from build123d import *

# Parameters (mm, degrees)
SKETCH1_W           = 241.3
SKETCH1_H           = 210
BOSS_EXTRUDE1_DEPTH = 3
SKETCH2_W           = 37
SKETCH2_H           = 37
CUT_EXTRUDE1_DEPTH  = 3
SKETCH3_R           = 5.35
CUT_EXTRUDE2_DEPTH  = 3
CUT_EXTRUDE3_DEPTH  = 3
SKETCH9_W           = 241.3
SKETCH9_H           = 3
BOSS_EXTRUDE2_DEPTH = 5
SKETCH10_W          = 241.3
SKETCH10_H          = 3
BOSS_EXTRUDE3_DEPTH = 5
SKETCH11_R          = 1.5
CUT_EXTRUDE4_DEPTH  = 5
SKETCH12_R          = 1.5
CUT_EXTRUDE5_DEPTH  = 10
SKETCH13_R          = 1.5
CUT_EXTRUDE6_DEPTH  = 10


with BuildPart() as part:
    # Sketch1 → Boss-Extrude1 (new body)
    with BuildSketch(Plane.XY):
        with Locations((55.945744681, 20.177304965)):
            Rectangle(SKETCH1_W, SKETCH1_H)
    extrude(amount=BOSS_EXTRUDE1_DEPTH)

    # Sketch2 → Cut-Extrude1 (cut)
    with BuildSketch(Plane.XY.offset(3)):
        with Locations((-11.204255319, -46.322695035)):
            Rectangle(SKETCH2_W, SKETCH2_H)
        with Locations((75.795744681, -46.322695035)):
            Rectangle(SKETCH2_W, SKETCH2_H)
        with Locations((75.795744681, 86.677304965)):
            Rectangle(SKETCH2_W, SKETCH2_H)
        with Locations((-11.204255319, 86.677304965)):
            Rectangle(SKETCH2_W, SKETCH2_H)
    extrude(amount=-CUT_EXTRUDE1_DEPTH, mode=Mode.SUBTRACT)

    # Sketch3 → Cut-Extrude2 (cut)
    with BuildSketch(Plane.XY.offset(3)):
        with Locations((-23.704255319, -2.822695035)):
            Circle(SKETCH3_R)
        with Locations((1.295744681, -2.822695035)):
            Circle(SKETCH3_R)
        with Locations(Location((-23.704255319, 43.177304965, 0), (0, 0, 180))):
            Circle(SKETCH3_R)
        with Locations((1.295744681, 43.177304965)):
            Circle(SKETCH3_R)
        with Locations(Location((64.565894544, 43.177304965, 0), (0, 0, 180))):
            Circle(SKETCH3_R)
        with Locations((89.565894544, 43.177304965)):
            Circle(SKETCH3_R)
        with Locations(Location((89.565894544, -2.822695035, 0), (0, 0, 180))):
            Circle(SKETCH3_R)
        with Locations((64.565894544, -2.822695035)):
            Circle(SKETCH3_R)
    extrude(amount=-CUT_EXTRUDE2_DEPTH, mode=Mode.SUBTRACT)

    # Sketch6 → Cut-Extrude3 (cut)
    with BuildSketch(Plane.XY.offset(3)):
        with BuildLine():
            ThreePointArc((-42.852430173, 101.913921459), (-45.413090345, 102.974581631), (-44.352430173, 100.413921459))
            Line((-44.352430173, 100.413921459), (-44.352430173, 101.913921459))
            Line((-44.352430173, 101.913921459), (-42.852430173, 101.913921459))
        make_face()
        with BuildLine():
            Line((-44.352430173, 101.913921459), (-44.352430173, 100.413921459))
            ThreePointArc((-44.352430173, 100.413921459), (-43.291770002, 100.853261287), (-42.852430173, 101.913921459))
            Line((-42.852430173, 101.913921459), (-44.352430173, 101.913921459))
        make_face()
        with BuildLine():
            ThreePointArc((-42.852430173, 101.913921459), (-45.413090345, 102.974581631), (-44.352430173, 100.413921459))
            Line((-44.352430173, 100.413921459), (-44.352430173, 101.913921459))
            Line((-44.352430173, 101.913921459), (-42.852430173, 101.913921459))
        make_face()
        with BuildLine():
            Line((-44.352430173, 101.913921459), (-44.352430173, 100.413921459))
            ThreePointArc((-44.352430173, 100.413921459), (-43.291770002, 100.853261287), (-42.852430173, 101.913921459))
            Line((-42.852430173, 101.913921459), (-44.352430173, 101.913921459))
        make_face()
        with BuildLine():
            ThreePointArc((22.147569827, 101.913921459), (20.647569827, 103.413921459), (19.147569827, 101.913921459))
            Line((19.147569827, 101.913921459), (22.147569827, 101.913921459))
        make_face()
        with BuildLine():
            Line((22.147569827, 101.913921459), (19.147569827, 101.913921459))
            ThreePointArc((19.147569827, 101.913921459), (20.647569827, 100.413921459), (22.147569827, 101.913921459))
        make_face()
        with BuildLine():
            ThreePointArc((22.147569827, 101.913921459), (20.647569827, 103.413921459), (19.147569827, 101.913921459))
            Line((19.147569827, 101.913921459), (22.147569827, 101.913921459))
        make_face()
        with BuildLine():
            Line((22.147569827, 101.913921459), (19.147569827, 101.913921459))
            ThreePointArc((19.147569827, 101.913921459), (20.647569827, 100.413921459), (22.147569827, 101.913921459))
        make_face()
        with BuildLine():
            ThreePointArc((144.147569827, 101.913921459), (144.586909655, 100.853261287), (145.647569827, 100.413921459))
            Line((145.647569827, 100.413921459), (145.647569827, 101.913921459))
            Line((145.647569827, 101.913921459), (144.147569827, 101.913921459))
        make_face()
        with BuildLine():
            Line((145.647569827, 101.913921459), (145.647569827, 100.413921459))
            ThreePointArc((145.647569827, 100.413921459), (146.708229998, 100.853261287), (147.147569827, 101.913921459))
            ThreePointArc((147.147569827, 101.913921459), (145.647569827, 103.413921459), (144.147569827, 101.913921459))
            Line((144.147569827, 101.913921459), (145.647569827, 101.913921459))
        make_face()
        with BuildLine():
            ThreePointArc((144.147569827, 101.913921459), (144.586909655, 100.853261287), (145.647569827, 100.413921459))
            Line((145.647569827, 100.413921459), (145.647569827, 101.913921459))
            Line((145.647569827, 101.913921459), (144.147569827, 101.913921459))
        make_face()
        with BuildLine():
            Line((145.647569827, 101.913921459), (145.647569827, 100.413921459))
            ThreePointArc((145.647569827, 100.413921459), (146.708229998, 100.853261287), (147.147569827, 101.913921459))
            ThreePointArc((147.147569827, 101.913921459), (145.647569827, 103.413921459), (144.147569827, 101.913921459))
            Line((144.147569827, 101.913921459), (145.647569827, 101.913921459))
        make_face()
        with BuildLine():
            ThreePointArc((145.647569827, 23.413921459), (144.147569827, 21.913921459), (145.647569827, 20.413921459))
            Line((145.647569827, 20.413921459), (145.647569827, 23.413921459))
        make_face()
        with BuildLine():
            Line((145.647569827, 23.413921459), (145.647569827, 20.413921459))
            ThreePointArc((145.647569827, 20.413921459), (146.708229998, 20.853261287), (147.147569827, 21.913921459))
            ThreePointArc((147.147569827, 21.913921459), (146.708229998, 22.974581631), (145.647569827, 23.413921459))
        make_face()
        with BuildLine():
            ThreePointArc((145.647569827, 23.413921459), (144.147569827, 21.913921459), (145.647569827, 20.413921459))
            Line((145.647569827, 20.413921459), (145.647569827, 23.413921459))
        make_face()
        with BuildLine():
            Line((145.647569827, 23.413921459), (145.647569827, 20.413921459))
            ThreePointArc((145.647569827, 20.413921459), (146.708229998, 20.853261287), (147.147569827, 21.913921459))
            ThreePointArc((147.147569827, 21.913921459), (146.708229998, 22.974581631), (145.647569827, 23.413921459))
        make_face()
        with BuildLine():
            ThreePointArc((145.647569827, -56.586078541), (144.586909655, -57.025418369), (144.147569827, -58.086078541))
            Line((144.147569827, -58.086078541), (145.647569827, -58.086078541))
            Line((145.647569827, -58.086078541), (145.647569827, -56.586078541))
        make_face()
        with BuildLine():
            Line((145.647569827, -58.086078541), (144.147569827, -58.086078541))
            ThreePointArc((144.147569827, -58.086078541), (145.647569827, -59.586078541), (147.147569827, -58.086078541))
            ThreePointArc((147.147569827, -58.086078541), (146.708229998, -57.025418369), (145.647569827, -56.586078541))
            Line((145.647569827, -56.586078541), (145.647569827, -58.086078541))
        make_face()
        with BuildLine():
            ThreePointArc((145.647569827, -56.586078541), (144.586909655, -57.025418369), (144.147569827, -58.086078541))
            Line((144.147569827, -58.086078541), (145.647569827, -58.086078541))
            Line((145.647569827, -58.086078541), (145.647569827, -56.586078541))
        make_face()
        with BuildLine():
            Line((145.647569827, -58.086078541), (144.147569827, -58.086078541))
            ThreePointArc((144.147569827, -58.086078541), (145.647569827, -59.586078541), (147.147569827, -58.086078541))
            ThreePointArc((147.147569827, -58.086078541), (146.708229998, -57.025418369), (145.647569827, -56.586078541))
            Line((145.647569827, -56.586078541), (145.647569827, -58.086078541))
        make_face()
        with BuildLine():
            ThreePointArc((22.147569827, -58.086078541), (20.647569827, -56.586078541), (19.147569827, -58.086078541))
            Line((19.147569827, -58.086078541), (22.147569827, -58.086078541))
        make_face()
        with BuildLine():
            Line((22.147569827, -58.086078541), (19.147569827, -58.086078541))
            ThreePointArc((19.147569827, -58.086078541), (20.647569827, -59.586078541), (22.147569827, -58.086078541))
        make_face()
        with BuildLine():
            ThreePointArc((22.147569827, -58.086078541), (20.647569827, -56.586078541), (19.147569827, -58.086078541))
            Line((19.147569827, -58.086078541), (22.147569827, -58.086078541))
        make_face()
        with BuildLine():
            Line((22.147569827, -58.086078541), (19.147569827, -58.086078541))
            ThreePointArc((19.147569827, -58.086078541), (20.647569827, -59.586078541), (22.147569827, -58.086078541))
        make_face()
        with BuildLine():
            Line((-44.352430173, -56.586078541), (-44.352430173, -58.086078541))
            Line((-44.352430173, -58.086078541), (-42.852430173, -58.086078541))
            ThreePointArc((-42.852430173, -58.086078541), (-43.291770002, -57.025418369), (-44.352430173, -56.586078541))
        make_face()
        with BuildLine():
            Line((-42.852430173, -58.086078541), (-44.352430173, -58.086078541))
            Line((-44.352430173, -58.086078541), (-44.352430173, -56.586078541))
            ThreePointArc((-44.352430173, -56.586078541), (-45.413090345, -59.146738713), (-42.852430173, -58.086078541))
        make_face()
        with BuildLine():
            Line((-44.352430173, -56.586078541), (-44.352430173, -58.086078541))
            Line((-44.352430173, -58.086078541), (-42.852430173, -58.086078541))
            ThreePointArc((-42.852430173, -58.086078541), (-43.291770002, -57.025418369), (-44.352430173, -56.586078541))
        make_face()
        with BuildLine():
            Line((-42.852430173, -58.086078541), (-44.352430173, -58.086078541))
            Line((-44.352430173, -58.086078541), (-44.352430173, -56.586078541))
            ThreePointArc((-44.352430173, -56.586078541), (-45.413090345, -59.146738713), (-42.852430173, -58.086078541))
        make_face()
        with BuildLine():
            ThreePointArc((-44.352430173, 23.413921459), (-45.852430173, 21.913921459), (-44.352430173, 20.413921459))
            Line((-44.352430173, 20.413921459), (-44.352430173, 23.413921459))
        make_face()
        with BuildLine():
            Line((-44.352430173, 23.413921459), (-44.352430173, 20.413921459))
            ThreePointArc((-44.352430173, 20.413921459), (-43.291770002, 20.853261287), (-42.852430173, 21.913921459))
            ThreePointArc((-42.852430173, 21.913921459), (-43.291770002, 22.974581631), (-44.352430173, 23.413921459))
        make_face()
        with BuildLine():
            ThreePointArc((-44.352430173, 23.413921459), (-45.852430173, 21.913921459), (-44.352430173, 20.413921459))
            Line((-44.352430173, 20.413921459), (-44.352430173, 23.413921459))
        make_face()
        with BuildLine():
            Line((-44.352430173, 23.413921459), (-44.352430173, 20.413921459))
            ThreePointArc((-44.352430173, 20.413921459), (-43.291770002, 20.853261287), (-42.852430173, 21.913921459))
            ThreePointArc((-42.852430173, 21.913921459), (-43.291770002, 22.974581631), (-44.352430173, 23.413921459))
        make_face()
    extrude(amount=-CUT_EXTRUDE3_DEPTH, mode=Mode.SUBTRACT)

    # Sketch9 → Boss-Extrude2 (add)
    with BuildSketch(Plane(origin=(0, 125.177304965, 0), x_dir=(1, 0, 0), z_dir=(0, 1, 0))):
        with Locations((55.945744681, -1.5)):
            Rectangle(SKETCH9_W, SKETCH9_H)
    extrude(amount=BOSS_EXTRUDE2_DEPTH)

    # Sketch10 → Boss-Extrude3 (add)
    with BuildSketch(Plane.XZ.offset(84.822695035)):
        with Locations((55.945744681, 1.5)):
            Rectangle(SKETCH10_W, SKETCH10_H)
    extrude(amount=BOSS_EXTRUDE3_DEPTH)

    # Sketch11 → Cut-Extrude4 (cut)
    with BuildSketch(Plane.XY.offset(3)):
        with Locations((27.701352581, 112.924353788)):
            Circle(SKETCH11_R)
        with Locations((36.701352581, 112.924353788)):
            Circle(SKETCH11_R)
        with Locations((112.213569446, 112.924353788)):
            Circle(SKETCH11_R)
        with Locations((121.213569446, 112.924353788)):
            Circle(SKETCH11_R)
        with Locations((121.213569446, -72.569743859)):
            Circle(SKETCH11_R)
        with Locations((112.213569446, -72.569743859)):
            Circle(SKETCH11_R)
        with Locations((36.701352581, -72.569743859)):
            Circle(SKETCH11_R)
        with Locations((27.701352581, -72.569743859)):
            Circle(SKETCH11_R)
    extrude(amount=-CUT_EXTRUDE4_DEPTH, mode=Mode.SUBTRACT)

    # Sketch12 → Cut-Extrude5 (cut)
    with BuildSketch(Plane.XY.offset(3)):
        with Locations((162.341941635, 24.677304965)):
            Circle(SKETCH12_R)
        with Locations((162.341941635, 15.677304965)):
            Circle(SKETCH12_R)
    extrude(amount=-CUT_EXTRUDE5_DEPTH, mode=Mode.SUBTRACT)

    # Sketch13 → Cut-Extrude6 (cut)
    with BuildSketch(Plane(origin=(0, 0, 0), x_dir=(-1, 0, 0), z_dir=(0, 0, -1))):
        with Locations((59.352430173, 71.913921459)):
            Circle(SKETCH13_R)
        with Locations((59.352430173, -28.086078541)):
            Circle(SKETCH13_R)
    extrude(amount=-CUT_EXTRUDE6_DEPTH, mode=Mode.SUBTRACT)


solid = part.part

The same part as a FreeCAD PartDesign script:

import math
import FreeCAD as App
import Part
import Sketcher
Q = App.Units.Quantity


def add_polygon(sketch, points):
    """Adds a closed chain of lines whose ends are joined by coincident constraints."""
    first, n = sketch.GeometryCount, len(points)
    for a, b in zip(points, points[1:] + points[:1]):
        sketch.addGeometry(Part.LineSegment(App.Vector(*a, 0), App.Vector(*b, 0)), False)
    for i in range(n):
        sketch.addConstraint(Sketcher.Constraint("Coincident", first + i, 2, first + (i + 1) % n, 1))

doc = App.newDocument("Part")
body = doc.addObject("PartDesign::Body", "Body")

# Sketch on XY plane
sketch1 = doc.addObject("Sketcher::SketchObject", "Sketch")
body.addObject(sketch1)
sketch1.AttachmentSupport = (doc.XY_Plane, [""])
sketch1.MapMode = "FlatFace"
add_polygon(sketch1, [(-65, 125), (-65, -85), (177, -85), (177, 125)])  # lines 0-3
sketch1.addConstraint([
    Sketcher.Constraint("Vertical", 0),
    Sketcher.Constraint("Horizontal", 1),
    Sketcher.Constraint("Vertical", 2),
    Sketcher.Constraint("Horizontal", 3),
    Sketcher.Constraint("DistanceY", 0, 2, 0, 1, Q("210 mm")),
    Sketcher.Constraint("DistanceX", 1, 1, 1, 2, Q("241.3 mm")),
    Sketcher.Constraint("DistanceX", 0, 2, -1, 1, Q("64.704255 mm")),
    Sketcher.Constraint("DistanceY", 0, 2, -1, 1, Q("84.822695 mm")),
])
pad1 = doc.addObject("PartDesign::Pad", "Pad")
body.addObject(pad1)
pad1.Profile = sketch1
pad1.Length = 3

# Sketch on XY plane
sketch2 = doc.addObject("Sketcher::SketchObject", "Sketch001")
body.addObject(sketch2)
sketch2.AttachmentSupport = (doc.XY_Plane, [""])
sketch2.MapMode = "FlatFace"
sketch2.AttachmentOffset = App.Placement(App.Vector(0, 0, 3), App.Rotation())
add_polygon(sketch2, [(-30, -28), (-30, -65), (7, -65), (7, -28)])  # lines 0-3
add_polygon(sketch2, [(57, -28), (57, -65), (94, -65), (94, -28)])  # lines 4-7
add_polygon(sketch2, [(57, 105), (57, 68), (94, 68), (94, 105)])  # lines 8-11
add_polygon(sketch2, [(-30, 105), (-30, 68), (7, 68), (7, 105)])  # lines 12-15
sketch2.addConstraint([
    Sketcher.Constraint("Vertical", 0),
    Sketcher.Constraint("Horizontal", 1),
    Sketcher.Constraint("Vertical", 2),
    Sketcher.Constraint("Horizontal", 3),
    Sketcher.Constraint("Vertical", 4),
    Sketcher.Constraint("Horizontal", 5),
    Sketcher.Constraint("Vertical", 6),
    Sketcher.Constraint("Horizontal", 7),
    Sketcher.Constraint("Vertical", 8),
    Sketcher.Constraint("Horizontal", 9),
    Sketcher.Constraint("Vertical", 10),
    Sketcher.Constraint("Horizontal", 11),
    Sketcher.Constraint("Vertical", 12),
    Sketcher.Constraint("Horizontal", 13),
    Sketcher.Constraint("Vertical", 14),
    Sketcher.Constraint("Horizontal", 15),
    Sketcher.Constraint("Horizontal", 1, 2, 4, 2),
    Sketcher.Constraint("Horizontal", 3, 2, 6, 2),
    Sketcher.Constraint("Horizontal", 9, 2, 12, 2),
    Sketcher.Constraint("Horizontal", 11, 2, 14, 2),
    Sketcher.Constraint("Vertical", 7, 2, 8, 2),
    Sketcher.Constraint("Vertical", 6, 2, 9, 2),
    Sketcher.Constraint("Vertical", 3, 2, 12, 2),
    Sketcher.Constraint("Vertical", 2, 2, 13, 2),
    Sketcher.Constraint("Equal", 3, 5),
    Sketcher.Constraint("Equal", 15, 0),
    Sketcher.Constraint("Equal", 6, 8),
    Sketcher.Constraint("DistanceX", 1, 1, 1, 2, Q("37 mm")),
    Sketcher.Constraint("DistanceX", 1, 2, 4, 2, Q("50 mm")),
    Sketcher.Constraint("DistanceY", 7, 2, 8, 2, Q("96 mm")),
    Sketcher.Constraint("DistanceX", 0, 2, -1, 1, Q("29.704255 mm")),
    Sketcher.Constraint("DistanceY", 0, 2, -1, 1, Q("64.822695 mm")),
])
pocket1 = doc.addObject("PartDesign::Pocket", "Pocket")
body.addObject(pocket1)
pocket1.Profile = sketch2
pocket1.Length = 3

# Sketch on XY plane
sketch3 = doc.addObject("Sketcher::SketchObject", "Sketch002")
body.addObject(sketch3)
sketch3.AttachmentSupport = (doc.XY_Plane, [""])
sketch3.MapMode = "FlatFace"
sketch3.AttachmentOffset = App.Placement(App.Vector(0, 0, 3), App.Rotation())
sketch3.addGeometry([
    Part.Circle(App.Vector(-24, -3, 0), App.Vector(0, 0, 1), 5),  # 0
    Part.Circle(App.Vector(1, -3, 0), App.Vector(0, 0, 1), 5),  # 1
    Part.Circle(App.Vector(-24, 43, 0), App.Vector(0, 0, 1), 5),  # 2
    Part.Circle(App.Vector(1, 43, 0), App.Vector(0, 0, 1), 5),  # 3
    Part.Circle(App.Vector(65, 43, 0), App.Vector(0, 0, 1), 5),  # 4
    Part.Circle(App.Vector(90, 43, 0), App.Vector(0, 0, 1), 5),  # 5
    Part.Circle(App.Vector(90, -3, 0), App.Vector(0, 0, 1), 5),  # 6
    Part.Circle(App.Vector(65, -3, 0), App.Vector(0, 0, 1), 5),  # 7
], False)
sketch3.addConstraint([
    Sketcher.Constraint("Equal", 0, 1),
    Sketcher.Constraint("Equal", 1, 2),
    Sketcher.Constraint("Equal", 2, 3),
    Sketcher.Constraint("Equal", 3, 4),
    Sketcher.Constraint("Equal", 4, 5),
    Sketcher.Constraint("Equal", 5, 6),
    Sketcher.Constraint("Equal", 6, 7),
    Sketcher.Constraint("Horizontal", 0, 3, 1, 3),
    Sketcher.Constraint("Horizontal", 2, 3, 3, 3),
    Sketcher.Constraint("Horizontal", 3, 3, 4, 3),
    Sketcher.Constraint("Horizontal", 4, 3, 5, 3),
    Sketcher.Constraint("Horizontal", 1, 3, 6, 3),
    Sketcher.Constraint("Horizontal", 6, 3, 7, 3),
    Sketcher.Constraint("Vertical", 0, 3, 2, 3),
    Sketcher.Constraint("Vertical", 1, 3, 3, 3),
    Sketcher.Constraint("Vertical", 5, 3, 6, 3),
    Sketcher.Constraint("Vertical", 4, 3, 7, 3),
    Sketcher.Constraint("Diameter", 0, Q("10.7 mm")),
    Sketcher.Constraint("DistanceX", 0, 3, 1, 3, Q("25 mm")),
    Sketcher.Constraint("DistanceY", 0, 3, 2, 3, Q("46 mm")),
    Sketcher.Constraint("DistanceX", 4, 3, 5, 3, Q("25 mm")),
    Sketcher.Constraint("DistanceX", 3, 3, 4, 3, Q("63.27015 mm")),
    Sketcher.Constraint("DistanceX", 0, 3, -1, 1, Q("23.704255 mm")),
    Sketcher.Constraint("DistanceY", 0, 3, -1, 1, Q("2.822695 mm")),
])
pocket2 = doc.addObject("PartDesign::Pocket", "Pocket001")
body.addObject(pocket2)
pocket2.Profile = sketch3
pocket2.Length = 3

# Sketch on XY plane
sketch4 = doc.addObject("Sketcher::SketchObject", "Sketch003")
body.addObject(sketch4)
sketch4.AttachmentSupport = (doc.XY_Plane, [""])
sketch4.MapMode = "FlatFace"
sketch4.AttachmentOffset = App.Placement(App.Vector(0, 0, 3), App.Rotation())
sketch4.addGeometry([
    Part.ArcOfCircle(Part.Circle(App.Vector(-44.4, 101.9, 0), App.Vector(0, 0, 1), 1.5), math.radians(0), math.radians(270)),  # 0
    Part.ArcOfCircle(Part.Circle(App.Vector(-44.4, 101.9, 0), App.Vector(0, 0, 1), 1.5), math.radians(-90), math.radians(0)),  # 1
    Part.Circle(App.Vector(20.6, 101.9, 0), App.Vector(0, 0, 1), 1.5),  # 2
    Part.ArcOfCircle(Part.Circle(App.Vector(145.6, 101.9, 0), App.Vector(0, 0, 1), 1.5), math.radians(180), math.radians(270)),  # 3
    Part.ArcOfCircle(Part.Circle(App.Vector(145.6, 101.9, 0), App.Vector(0, 0, 1), 1.5), math.radians(-90), math.radians(0)),  # 4
    Part.ArcOfCircle(Part.Circle(App.Vector(145.6, 101.9, 0), App.Vector(0, 0, 1), 1.5), math.radians(0), math.radians(180)),  # 5
    Part.ArcOfCircle(Part.Circle(App.Vector(145.6, 21.9, 0), App.Vector(0, 0, 1), 1.5), math.radians(90), math.radians(270)),  # 6
    Part.ArcOfCircle(Part.Circle(App.Vector(145.6, 21.9, 0), App.Vector(0, 0, 1), 1.5), math.radians(-90), math.radians(0)),  # 7
    Part.ArcOfCircle(Part.Circle(App.Vector(145.6, 21.9, 0), App.Vector(0, 0, 1), 1.5), math.radians(0), math.radians(90)),  # 8
    Part.ArcOfCircle(Part.Circle(App.Vector(145.6, -58.1, 0), App.Vector(0, 0, 1), 1.5), math.radians(90), math.radians(180)),  # 9
    Part.ArcOfCircle(Part.Circle(App.Vector(145.6, -58.1, 0), App.Vector(0, 0, 1), 1.5), math.radians(180), math.radians(360)),  # 10
    Part.ArcOfCircle(Part.Circle(App.Vector(145.6, -58.1, 0), App.Vector(0, 0, 1), 1.5), math.radians(0), math.radians(90)),  # 11
    Part.Circle(App.Vector(20.6, -58.1, 0), App.Vector(0, 0, 1), 1.5),  # 12
    Part.ArcOfCircle(Part.Circle(App.Vector(-44.4, -58.1, 0), App.Vector(0, 0, 1), 1.5), math.radians(0), math.radians(90)),  # 13
    Part.ArcOfCircle(Part.Circle(App.Vector(-44.4, -58.1, 0), App.Vector(0, 0, 1), 1.5), math.radians(90), math.radians(360)),  # 14
    Part.ArcOfCircle(Part.Circle(App.Vector(-44.4, 21.9, 0), App.Vector(0, 0, 1), 1.5), math.radians(90), math.radians(270)),  # 15
    Part.ArcOfCircle(Part.Circle(App.Vector(-44.4, 21.9, 0), App.Vector(0, 0, 1), 1.5), math.radians(-90), math.radians(0)),  # 16
    Part.ArcOfCircle(Part.Circle(App.Vector(-44.4, 21.9, 0), App.Vector(0, 0, 1), 1.5), math.radians(0), math.radians(90)),  # 17
], False)
sketch4.addConstraint([
    Sketcher.Constraint("Tangent", 0, 1, 1, 2),
    Sketcher.Constraint("Coincident", 1, 1, 0, 2),
    Sketcher.Constraint("Tangent", 3, 2, 4, 1),
    Sketcher.Constraint("Tangent", 4, 2, 5, 1),
    Sketcher.Constraint("Tangent", 5, 2, 3, 1),
    Sketcher.Constraint("Tangent", 6, 2, 7, 1),
    Sketcher.Constraint("Tangent", 7, 2, 8, 1),
    Sketcher.Constraint("Tangent", 8, 2, 6, 1),
    Sketcher.Constraint("Tangent", 9, 2, 10, 1),
    Sketcher.Constraint("Tangent", 10, 2, 11, 1),
    Sketcher.Constraint("Tangent", 11, 2, 9, 1),
    Sketcher.Constraint("Tangent", 13, 1, 14, 2),
    Sketcher.Constraint("Coincident", 14, 1, 13, 2),
    Sketcher.Constraint("Tangent", 15, 2, 16, 1),
    Sketcher.Constraint("Tangent", 16, 2, 17, 1),
    Sketcher.Constraint("Tangent", 17, 2, 15, 1),
    Sketcher.Constraint("Equal", 1, 2),
    Sketcher.Constraint("Equal", 2, 3),
    Sketcher.Constraint("Equal", 5, 6),
    Sketcher.Constraint("Equal", 8, 9),
    Sketcher.Constraint("Equal", 11, 12),
    Sketcher.Constraint("Equal", 12, 13),
    Sketcher.Constraint("Equal", 14, 15),
    Sketcher.Constraint("Horizontal", 1, 3, 2, 3),
    Sketcher.Constraint("Horizontal", 2, 3, 3, 3),
    Sketcher.Constraint("Horizontal", 11, 3, 12, 3),
    Sketcher.Constraint("Horizontal", 12, 3, 13, 3),
    Sketcher.Constraint("Horizontal", 8, 3, 15, 3),
    Sketcher.Constraint("Horizontal", 5, 3, 0, 1),
    Sketcher.Constraint("Horizontal", 0, 1, 4, 2),
    Sketcher.Constraint("Horizontal", 4, 2, 5, 2),
    Sketcher.Constraint("Horizontal", 17, 3, 7, 2),
    Sketcher.Constraint("Horizontal", 14, 3, 9, 2),
    Sketcher.Constraint("Horizontal", 9, 2, 10, 2),
    Sketcher.Constraint("Horizontal", 10, 2, 13, 1),
    Sketcher.Constraint("Horizontal", 7, 2, 16, 2),
    Sketcher.Constraint("Vertical", 5, 3, 6, 3),
    Sketcher.Constraint("Vertical", 8, 3, 9, 3),
    Sketcher.Constraint("Vertical", 2, 3, 12, 3),
    Sketcher.Constraint("Vertical", 1, 3, 13, 3),
    Sketcher.Constraint("Vertical", 14, 3, 15, 3),
    Sketcher.Constraint("Vertical", 17, 3, 1, 1),
    Sketcher.Constraint("Vertical", 11, 3, 3, 2),
    Sketcher.Constraint("Vertical", 3, 2, 6, 2),
    Sketcher.Constraint("Vertical", 6, 2, 8, 2),
    Sketcher.Constraint("Vertical", 8, 2, 11, 2),
    Sketcher.Constraint("Vertical", 1, 1, 14, 1),
    Sketcher.Constraint("Vertical", 14, 1, 15, 2),
    Sketcher.Constraint("Vertical", 15, 2, 17, 2),
    Sketcher.Constraint("Diameter", 2, Q("3 mm")),
    Sketcher.Constraint("DistanceX", 0, 3, 2, 3, Q("65 mm")),
    Sketcher.Constraint("DistanceX", 2, 3, 3, 3, Q("125 mm")),
    Sketcher.Constraint("DistanceY", 6, 3, 3, 3, Q("80 mm")),
    Sketcher.Constraint("DistanceY", 9, 3, 8, 3, Q("80 mm")),
    Sketcher.Constraint("DistanceX", 0, 3, -1, 1, Q("44.35243 mm")),
    Sketcher.Constraint("DistanceY", -1, 1, 0, 3, Q("101.913921 mm")),
])
pocket3 = doc.addObject("PartDesign::Pocket", "Pocket002")
body.addObject(pocket3)
pocket3.Profile = sketch4
pocket3.Length = 3

# Sketch on XZ plane
sketch5 = doc.addObject("Sketcher::SketchObject", "Sketch004")
body.addObject(sketch5)
sketch5.AttachmentSupport = (doc.XZ_Plane, [""])
sketch5.MapMode = "FlatFace"
sketch5.AttachmentOffset = App.Placement(App.Vector(0, 0, -125.177305), App.Rotation())
add_polygon(sketch5, [(-64.7, 0), (-64.7, 3), (176.6, 3), (176.6, 0)])  # lines 0-3
sketch5.addConstraint([
    Sketcher.Constraint("Vertical", 0),
    Sketcher.Constraint("Horizontal", 1),
    Sketcher.Constraint("Vertical", 2),
    Sketcher.Constraint("Horizontal", 3),
    Sketcher.Constraint("PointOnObject", 2, 2, -1),
    Sketcher.Constraint("DistanceY", 0, 1, 0, 2, Q("3 mm")),
    Sketcher.Constraint("DistanceX", 1, 1, 1, 2, Q("241.3 mm")),
    Sketcher.Constraint("DistanceX", 0, 2, -1, 1, Q("64.704255 mm")),
])
pad2 = doc.addObject("PartDesign::Pad", "Pad001")
body.addObject(pad2)
pad2.Profile = sketch5
pad2.Length = 5
pad2.Reversed = True

# Sketch on XZ plane
sketch6 = doc.addObject("Sketcher::SketchObject", "Sketch005")
body.addObject(sketch6)
sketch6.AttachmentSupport = (doc.XZ_Plane, [""])
sketch6.MapMode = "FlatFace"
sketch6.AttachmentOffset = App.Placement(App.Vector(0, 0, 84.822695), App.Rotation())
add_polygon(sketch6, [(-64.7, 3), (-64.7, 0), (176.6, 0), (176.6, 3)])  # lines 0-3
sketch6.addConstraint([
    Sketcher.Constraint("Vertical", 0),
    Sketcher.Constraint("Horizontal", 1),
    Sketcher.Constraint("Vertical", 2),
    Sketcher.Constraint("Horizontal", 3),
    Sketcher.Constraint("PointOnObject", 0, 2, -1),
    Sketcher.Constraint("DistanceY", 0, 2, 0, 1, Q("3 mm")),
    Sketcher.Constraint("DistanceX", 1, 1, 1, 2, Q("241.3 mm")),
    Sketcher.Constraint("DistanceX", 0, 2, -1, 1, Q("64.704255 mm")),
])
pad3 = doc.addObject("PartDesign::Pad", "Pad002")
body.addObject(pad3)
pad3.Profile = sketch6
pad3.Length = 5

# Sketch on XY plane
sketch7 = doc.addObject("Sketcher::SketchObject", "Sketch006")
body.addObject(sketch7)
sketch7.AttachmentSupport = (doc.XY_Plane, [""])
sketch7.MapMode = "FlatFace"
sketch7.AttachmentOffset = App.Placement(App.Vector(0, 0, 3), App.Rotation())
sketch7.addGeometry([
    Part.Circle(App.Vector(27.7, 112.9, 0), App.Vector(0, 0, 1), 1.5),  # 0
    Part.Circle(App.Vector(36.7, 112.9, 0), App.Vector(0, 0, 1), 1.5),  # 1
    Part.Circle(App.Vector(112.2, 112.9, 0), App.Vector(0, 0, 1), 1.5),  # 2
    Part.Circle(App.Vector(121.2, 112.9, 0), App.Vector(0, 0, 1), 1.5),  # 3
    Part.Circle(App.Vector(121.2, -72.6, 0), App.Vector(0, 0, 1), 1.5),  # 4
    Part.Circle(App.Vector(112.2, -72.6, 0), App.Vector(0, 0, 1), 1.5),  # 5
    Part.Circle(App.Vector(36.7, -72.6, 0), App.Vector(0, 0, 1), 1.5),  # 6
    Part.Circle(App.Vector(27.7, -72.6, 0), App.Vector(0, 0, 1), 1.5),  # 7
], False)
sketch7.addConstraint([
    Sketcher.Constraint("Equal", 0, 1),
    Sketcher.Constraint("Equal", 1, 2),
    Sketcher.Constraint("Equal", 2, 3),
    Sketcher.Constraint("Equal", 3, 4),
    Sketcher.Constraint("Equal", 4, 5),
    Sketcher.Constraint("Equal", 5, 6),
    Sketcher.Constraint("Equal", 6, 7),
    Sketcher.Constraint("Horizontal", 0, 3, 1, 3),
    Sketcher.Constraint("Horizontal", 1, 3, 2, 3),
    Sketcher.Constraint("Horizontal", 2, 3, 3, 3),
    Sketcher.Constraint("Horizontal", 4, 3, 5, 3),
    Sketcher.Constraint("Horizontal", 5, 3, 6, 3),
    Sketcher.Constraint("Horizontal", 6, 3, 7, 3),
    Sketcher.Constraint("Vertical", 3, 3, 4, 3),
    Sketcher.Constraint("Vertical", 2, 3, 5, 3),
    Sketcher.Constraint("Vertical", 1, 3, 6, 3),
    Sketcher.Constraint("Vertical", 0, 3, 7, 3),
    Sketcher.Constraint("Diameter", 0, Q("3 mm")),
    Sketcher.Constraint("DistanceX", 0, 3, 1, 3, Q("9 mm")),
    Sketcher.Constraint("DistanceX", 2, 3, 3, 3, Q("9 mm")),
    Sketcher.Constraint("DistanceX", -1, 1, 2, 3, Q("112.213569 mm")),
    Sketcher.Constraint("DistanceX", -1, 1, 0, 3, Q("27.701353 mm")),
    Sketcher.Constraint("DistanceY", -1, 1, 0, 3, Q("112.924354 mm")),
    Sketcher.Constraint("DistanceY", 4, 3, -1, 1, Q("72.569744 mm")),
])
pocket4 = doc.addObject("PartDesign::Pocket", "Pocket003")
body.addObject(pocket4)
pocket4.Profile = sketch7
pocket4.Length = 5

# Sketch on XY plane
sketch8 = doc.addObject("Sketcher::SketchObject", "Sketch007")
body.addObject(sketch8)
sketch8.AttachmentSupport = (doc.XY_Plane, [""])
sketch8.MapMode = "FlatFace"
sketch8.AttachmentOffset = App.Placement(App.Vector(0, 0, 3), App.Rotation())
sketch8.addGeometry([
    Part.Circle(App.Vector(162.3, 24.7, 0), App.Vector(0, 0, 1), 1.5),
    Part.Circle(App.Vector(162.3, 15.7, 0), App.Vector(0, 0, 1), 1.5),
], False)
sketch8.addConstraint([
    Sketcher.Constraint("Equal", 0, 1),
    Sketcher.Constraint("Vertical", 0, 3, 1, 3),
    Sketcher.Constraint("Diameter", 0, Q("3 mm")),
    Sketcher.Constraint("DistanceY", 1, 3, 0, 3, Q("9 mm")),
    Sketcher.Constraint("DistanceX", -1, 1, 0, 3, Q("162.341942 mm")),
    Sketcher.Constraint("DistanceY", -1, 1, 0, 3, Q("24.677305 mm")),
])
pocket5 = doc.addObject("PartDesign::Pocket", "Pocket004")
body.addObject(pocket5)
pocket5.Profile = sketch8
pocket5.Length = 10

# Sketch on XY plane
sketch9 = doc.addObject("Sketcher::SketchObject", "Sketch008")
body.addObject(sketch9)
sketch9.AttachmentSupport = (doc.XY_Plane, [""])
sketch9.MapMode = "FlatFace"
sketch9.addGeometry([
    Part.Circle(App.Vector(-59.4, 71.9, 0), App.Vector(0, 0, 1), 1.5),
    Part.Circle(App.Vector(-59.4, -28.1, 0), App.Vector(0, 0, 1), 1.5),
], False)
sketch9.addConstraint([
    Sketcher.Constraint("Equal", 0, 1),
    Sketcher.Constraint("Vertical", 0, 3, 1, 3),
    Sketcher.Constraint("Diameter", 0, Q("3 mm")),
    Sketcher.Constraint("DistanceY", 1, 3, 0, 3, Q("100 mm")),
    Sketcher.Constraint("DistanceX", 0, 3, -1, 1, Q("59.35243 mm")),
    Sketcher.Constraint("DistanceY", -1, 1, 0, 3, Q("71.913921 mm")),
])
pocket6 = doc.addObject("PartDesign::Pocket", "Pocket005")
body.addObject(pocket6)
pocket6.Profile = sketch9
pocket6.Length = 10
pocket6.Reversed = True

doc.recompute()
